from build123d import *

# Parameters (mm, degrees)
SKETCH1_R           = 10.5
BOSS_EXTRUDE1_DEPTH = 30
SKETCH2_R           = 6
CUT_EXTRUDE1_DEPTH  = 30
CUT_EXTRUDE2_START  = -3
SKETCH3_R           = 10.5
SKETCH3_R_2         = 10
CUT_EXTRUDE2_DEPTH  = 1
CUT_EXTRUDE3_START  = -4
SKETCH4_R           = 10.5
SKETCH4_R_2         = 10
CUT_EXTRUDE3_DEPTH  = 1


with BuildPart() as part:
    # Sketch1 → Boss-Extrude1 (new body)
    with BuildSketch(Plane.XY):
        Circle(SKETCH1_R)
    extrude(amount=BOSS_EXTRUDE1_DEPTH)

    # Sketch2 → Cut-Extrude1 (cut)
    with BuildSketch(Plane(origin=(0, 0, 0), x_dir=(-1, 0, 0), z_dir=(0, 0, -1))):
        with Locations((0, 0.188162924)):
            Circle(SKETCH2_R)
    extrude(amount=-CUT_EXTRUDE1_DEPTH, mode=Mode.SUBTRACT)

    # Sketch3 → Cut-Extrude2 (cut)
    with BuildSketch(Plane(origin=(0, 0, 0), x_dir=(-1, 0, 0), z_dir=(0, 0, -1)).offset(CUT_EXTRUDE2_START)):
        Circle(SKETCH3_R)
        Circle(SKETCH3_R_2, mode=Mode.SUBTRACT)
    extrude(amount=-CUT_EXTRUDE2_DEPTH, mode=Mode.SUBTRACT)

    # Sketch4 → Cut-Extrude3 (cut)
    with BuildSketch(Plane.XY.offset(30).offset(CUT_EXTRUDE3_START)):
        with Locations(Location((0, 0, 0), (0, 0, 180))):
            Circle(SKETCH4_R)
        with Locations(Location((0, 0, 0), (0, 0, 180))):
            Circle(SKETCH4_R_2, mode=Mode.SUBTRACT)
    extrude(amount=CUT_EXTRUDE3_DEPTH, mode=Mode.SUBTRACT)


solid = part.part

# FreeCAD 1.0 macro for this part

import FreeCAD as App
import Part
import Sketcher

doc = App.newDocument("Part")
body = doc.addObject("PartDesign::Body", "Body")

# Sketch on XY plane
sketch1 = body.newObject("Sketcher::SketchObject", "Sketch")
sketch1.AttachmentSupport = (doc.getObject("XY_Plane"), [""])
sketch1.MapMode = "FlatFace"
sketch1.addGeometry(Part.Circle(App.Vector(0, 0, 0), App.Vector(0, 0, 1), 10), False)
sketch1.addConstraint([
    Sketcher.Constraint("Coincident", 0, 3, -1, 1),
    Sketcher.Constraint("Diameter", 0, 21.0),
])
pad1 = body.newObject("PartDesign::Pad", "Pad")
pad1.Profile = sketch1
pad1.Length = 30

# Sketch on XY plane
sketch2 = body.newObject("Sketcher::SketchObject", "Sketch001")
sketch2.AttachmentSupport = (doc.getObject("XY_Plane"), [""])
sketch2.MapMode = "FlatFace"
sketch2.addGeometry(Part.Circle(App.Vector(0, 0, 0), App.Vector(0, 0, 1), 6), False)
sketch2.addConstraint([
    Sketcher.Constraint("PointOnObject", 0, 3, -2),
    Sketcher.Constraint("Diameter", 0, 12.0),
    Sketcher.Constraint("DistanceY", -1, 1, 0, 3, 0.188163),
])
pocket1 = body.newObject("PartDesign::Pocket", "Pocket")
pocket1.Profile = sketch2
pocket1.Length = 30
pocket1.Reversed = True

# Sketch on XY plane
sketch3 = body.newObject("Sketcher::SketchObject", "Sketch002")
sketch3.AttachmentSupport = (doc.getObject("XY_Plane"), [""])
sketch3.MapMode = "FlatFace"
sketch3.AttachmentOffset = App.Placement(App.Vector(0, 0, 3), App.Rotation())
sketch3.addGeometry([
    Part.Circle(App.Vector(0, 0, 0), App.Vector(0, 0, 1), 10),
    Part.Circle(App.Vector(0, 0, 0), App.Vector(0, 0, 1), 10),
], False)
sketch3.addConstraint([
    Sketcher.Constraint("Coincident", 0, 3, -1, 1),
    Sketcher.Constraint("Coincident", 1, 3, -1, 1),
    Sketcher.Constraint("Diameter", 0, 21.0),
    Sketcher.Constraint("Diameter", 1, 20.0),
])
pocket2 = body.newObject("PartDesign::Pocket", "Pocket001")
pocket2.Profile = sketch3
pocket2.Length = 1
pocket2.Reversed = True

# Sketch on XY plane
sketch4 = body.newObject("Sketcher::SketchObject", "Sketch003")
sketch4.AttachmentSupport = (doc.getObject("XY_Plane"), [""])
sketch4.MapMode = "FlatFace"
sketch4.AttachmentOffset = App.Placement(App.Vector(0, 0, 26), App.Rotation())
sketch4.addGeometry([
    Part.Circle(App.Vector(0, 0, 0), App.Vector(0, 0, 1), 10),
    Part.Circle(App.Vector(0, 0, 0), App.Vector(0, 0, 1), 10),
], False)
sketch4.addConstraint([
    Sketcher.Constraint("Coincident", 0, 3, -1, 1),
    Sketcher.Constraint("Coincident", 1, 3, -1, 1),
    Sketcher.Constraint("Diameter", 0, 21.0),
    Sketcher.Constraint("Diameter", 1, 20.0),
])
pocket3 = body.newObject("PartDesign::Pocket", "Pocket002")
pocket3.Profile = sketch4
pocket3.Length = 1
pocket3.Reversed = True

doc.recompute()
